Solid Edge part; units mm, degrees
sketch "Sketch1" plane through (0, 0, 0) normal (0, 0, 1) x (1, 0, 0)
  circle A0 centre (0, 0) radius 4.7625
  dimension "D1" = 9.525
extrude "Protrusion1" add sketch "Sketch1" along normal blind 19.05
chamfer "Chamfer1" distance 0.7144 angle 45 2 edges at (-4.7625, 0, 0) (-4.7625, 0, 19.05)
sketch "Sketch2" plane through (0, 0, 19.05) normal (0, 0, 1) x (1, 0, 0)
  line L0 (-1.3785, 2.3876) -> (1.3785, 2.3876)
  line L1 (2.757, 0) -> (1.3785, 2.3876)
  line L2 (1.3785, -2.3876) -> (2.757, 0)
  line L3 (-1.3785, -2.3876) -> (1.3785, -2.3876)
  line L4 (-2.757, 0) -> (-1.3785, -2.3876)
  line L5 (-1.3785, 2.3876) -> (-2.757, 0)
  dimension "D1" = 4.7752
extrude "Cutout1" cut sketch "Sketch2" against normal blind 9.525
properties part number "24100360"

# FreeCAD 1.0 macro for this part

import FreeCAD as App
import Part
import Sketcher
Q = App.Units.Quantity


def edges_at(feature, points):
    """Names of the edges that pass closest to the given points."""
    edges = feature.Shape.Edges
    near = lambda p: min(range(len(edges)), key=lambda i: edges[i].distToShape(Part.Vertex(*p))[0])
    return sorted({f"Edge{near(p) + 1}" for p in points})


def add_polygon(sketch, points):
    """Adds a closed chain of lines whose ends are joined by coincident constraints."""
    first, n = sketch.GeometryCount, len(points)
    for a, b in zip(points, points[1:] + points[:1]):
        sketch.addGeometry(Part.LineSegment(App.Vector(*a, 0), App.Vector(*b, 0)), False)
    for i in range(n):
        sketch.addConstraint(Sketcher.Constraint("Coincident", first + i, 2, first + (i + 1) % n, 1))

doc = App.newDocument("Part")
body = doc.addObject("PartDesign::Body", "Body")

sketch1 = body.newObject("Sketcher::SketchObject", "Sketch")
sketch1.AttachmentSupport = (doc.getObject("XY_Plane"), [""])
sketch1.MapMode = "FlatFace"
sketch1.addGeometry(Part.Circle(App.Vector(0, 0, 0), App.Vector(0, 0, 1), 4.8), False)
sketch1.addConstraint([
    Sketcher.Constraint("Coincident", 0, 3, -1, 1),
    Sketcher.Constraint("Diameter", 0, Q("0.375 in")),
])
pad1 = body.newObject("PartDesign::Pad", "Pad")
pad1.Profile = sketch1
pad1.Length = Q("0.75 in")
doc.recompute()

chamfer = body.newObject("PartDesign::Chamfer", "Chamfer")
chamfer.Base = (pad1, edges_at(pad1, [(-4.763, 0, 0), (-4.763, 0, 19.05)]))
chamfer.Size = 0.7144

sketch2 = body.newObject("Sketcher::SketchObject", "Sketch001")
sketch2.AttachmentSupport = (doc.getObject("XY_Plane"), [""])
sketch2.MapMode = "FlatFace"
sketch2.AttachmentOffset = App.Placement(App.Vector(0, 0, 0.75 * 25.4), App.Rotation())
add_polygon(sketch2, [(1.4, 2.4), (-1.4, 2.4), (-2.8, 0), (-1.4, -2.4), (1.4, -2.4), (2.8, 0)])
sketch2.addConstraint([
    Sketcher.Constraint("Horizontal", 0),
    Sketcher.Constraint("Horizontal", 3),
    Sketcher.Constraint("Symmetric", 0, 2, 3, 2, -1, 1),
    Sketcher.Constraint("Symmetric", 1, 2, 4, 2, -1, 1),
    Sketcher.Constraint("PointOnObject", 1, 2, -1),
    Sketcher.Constraint("Parallel", 2, 5),
    Sketcher.Constraint("Vertical", 0, 2, 2, 2),
    Sketcher.Constraint("Angle", 1, Q("-120.0003 deg")),
    Sketcher.Constraint("DistanceY", -1, 1, 0, 2, Q("0.094 in")),
    Sketcher.Constraint("DistanceX", 0, 2, 0, 1, 2.757),
])
pocket1 = body.newObject("PartDesign::Pocket", "Pocket")
pocket1.Profile = sketch2
pocket1.Length = Q("0.375 in")

doc.recompute()
